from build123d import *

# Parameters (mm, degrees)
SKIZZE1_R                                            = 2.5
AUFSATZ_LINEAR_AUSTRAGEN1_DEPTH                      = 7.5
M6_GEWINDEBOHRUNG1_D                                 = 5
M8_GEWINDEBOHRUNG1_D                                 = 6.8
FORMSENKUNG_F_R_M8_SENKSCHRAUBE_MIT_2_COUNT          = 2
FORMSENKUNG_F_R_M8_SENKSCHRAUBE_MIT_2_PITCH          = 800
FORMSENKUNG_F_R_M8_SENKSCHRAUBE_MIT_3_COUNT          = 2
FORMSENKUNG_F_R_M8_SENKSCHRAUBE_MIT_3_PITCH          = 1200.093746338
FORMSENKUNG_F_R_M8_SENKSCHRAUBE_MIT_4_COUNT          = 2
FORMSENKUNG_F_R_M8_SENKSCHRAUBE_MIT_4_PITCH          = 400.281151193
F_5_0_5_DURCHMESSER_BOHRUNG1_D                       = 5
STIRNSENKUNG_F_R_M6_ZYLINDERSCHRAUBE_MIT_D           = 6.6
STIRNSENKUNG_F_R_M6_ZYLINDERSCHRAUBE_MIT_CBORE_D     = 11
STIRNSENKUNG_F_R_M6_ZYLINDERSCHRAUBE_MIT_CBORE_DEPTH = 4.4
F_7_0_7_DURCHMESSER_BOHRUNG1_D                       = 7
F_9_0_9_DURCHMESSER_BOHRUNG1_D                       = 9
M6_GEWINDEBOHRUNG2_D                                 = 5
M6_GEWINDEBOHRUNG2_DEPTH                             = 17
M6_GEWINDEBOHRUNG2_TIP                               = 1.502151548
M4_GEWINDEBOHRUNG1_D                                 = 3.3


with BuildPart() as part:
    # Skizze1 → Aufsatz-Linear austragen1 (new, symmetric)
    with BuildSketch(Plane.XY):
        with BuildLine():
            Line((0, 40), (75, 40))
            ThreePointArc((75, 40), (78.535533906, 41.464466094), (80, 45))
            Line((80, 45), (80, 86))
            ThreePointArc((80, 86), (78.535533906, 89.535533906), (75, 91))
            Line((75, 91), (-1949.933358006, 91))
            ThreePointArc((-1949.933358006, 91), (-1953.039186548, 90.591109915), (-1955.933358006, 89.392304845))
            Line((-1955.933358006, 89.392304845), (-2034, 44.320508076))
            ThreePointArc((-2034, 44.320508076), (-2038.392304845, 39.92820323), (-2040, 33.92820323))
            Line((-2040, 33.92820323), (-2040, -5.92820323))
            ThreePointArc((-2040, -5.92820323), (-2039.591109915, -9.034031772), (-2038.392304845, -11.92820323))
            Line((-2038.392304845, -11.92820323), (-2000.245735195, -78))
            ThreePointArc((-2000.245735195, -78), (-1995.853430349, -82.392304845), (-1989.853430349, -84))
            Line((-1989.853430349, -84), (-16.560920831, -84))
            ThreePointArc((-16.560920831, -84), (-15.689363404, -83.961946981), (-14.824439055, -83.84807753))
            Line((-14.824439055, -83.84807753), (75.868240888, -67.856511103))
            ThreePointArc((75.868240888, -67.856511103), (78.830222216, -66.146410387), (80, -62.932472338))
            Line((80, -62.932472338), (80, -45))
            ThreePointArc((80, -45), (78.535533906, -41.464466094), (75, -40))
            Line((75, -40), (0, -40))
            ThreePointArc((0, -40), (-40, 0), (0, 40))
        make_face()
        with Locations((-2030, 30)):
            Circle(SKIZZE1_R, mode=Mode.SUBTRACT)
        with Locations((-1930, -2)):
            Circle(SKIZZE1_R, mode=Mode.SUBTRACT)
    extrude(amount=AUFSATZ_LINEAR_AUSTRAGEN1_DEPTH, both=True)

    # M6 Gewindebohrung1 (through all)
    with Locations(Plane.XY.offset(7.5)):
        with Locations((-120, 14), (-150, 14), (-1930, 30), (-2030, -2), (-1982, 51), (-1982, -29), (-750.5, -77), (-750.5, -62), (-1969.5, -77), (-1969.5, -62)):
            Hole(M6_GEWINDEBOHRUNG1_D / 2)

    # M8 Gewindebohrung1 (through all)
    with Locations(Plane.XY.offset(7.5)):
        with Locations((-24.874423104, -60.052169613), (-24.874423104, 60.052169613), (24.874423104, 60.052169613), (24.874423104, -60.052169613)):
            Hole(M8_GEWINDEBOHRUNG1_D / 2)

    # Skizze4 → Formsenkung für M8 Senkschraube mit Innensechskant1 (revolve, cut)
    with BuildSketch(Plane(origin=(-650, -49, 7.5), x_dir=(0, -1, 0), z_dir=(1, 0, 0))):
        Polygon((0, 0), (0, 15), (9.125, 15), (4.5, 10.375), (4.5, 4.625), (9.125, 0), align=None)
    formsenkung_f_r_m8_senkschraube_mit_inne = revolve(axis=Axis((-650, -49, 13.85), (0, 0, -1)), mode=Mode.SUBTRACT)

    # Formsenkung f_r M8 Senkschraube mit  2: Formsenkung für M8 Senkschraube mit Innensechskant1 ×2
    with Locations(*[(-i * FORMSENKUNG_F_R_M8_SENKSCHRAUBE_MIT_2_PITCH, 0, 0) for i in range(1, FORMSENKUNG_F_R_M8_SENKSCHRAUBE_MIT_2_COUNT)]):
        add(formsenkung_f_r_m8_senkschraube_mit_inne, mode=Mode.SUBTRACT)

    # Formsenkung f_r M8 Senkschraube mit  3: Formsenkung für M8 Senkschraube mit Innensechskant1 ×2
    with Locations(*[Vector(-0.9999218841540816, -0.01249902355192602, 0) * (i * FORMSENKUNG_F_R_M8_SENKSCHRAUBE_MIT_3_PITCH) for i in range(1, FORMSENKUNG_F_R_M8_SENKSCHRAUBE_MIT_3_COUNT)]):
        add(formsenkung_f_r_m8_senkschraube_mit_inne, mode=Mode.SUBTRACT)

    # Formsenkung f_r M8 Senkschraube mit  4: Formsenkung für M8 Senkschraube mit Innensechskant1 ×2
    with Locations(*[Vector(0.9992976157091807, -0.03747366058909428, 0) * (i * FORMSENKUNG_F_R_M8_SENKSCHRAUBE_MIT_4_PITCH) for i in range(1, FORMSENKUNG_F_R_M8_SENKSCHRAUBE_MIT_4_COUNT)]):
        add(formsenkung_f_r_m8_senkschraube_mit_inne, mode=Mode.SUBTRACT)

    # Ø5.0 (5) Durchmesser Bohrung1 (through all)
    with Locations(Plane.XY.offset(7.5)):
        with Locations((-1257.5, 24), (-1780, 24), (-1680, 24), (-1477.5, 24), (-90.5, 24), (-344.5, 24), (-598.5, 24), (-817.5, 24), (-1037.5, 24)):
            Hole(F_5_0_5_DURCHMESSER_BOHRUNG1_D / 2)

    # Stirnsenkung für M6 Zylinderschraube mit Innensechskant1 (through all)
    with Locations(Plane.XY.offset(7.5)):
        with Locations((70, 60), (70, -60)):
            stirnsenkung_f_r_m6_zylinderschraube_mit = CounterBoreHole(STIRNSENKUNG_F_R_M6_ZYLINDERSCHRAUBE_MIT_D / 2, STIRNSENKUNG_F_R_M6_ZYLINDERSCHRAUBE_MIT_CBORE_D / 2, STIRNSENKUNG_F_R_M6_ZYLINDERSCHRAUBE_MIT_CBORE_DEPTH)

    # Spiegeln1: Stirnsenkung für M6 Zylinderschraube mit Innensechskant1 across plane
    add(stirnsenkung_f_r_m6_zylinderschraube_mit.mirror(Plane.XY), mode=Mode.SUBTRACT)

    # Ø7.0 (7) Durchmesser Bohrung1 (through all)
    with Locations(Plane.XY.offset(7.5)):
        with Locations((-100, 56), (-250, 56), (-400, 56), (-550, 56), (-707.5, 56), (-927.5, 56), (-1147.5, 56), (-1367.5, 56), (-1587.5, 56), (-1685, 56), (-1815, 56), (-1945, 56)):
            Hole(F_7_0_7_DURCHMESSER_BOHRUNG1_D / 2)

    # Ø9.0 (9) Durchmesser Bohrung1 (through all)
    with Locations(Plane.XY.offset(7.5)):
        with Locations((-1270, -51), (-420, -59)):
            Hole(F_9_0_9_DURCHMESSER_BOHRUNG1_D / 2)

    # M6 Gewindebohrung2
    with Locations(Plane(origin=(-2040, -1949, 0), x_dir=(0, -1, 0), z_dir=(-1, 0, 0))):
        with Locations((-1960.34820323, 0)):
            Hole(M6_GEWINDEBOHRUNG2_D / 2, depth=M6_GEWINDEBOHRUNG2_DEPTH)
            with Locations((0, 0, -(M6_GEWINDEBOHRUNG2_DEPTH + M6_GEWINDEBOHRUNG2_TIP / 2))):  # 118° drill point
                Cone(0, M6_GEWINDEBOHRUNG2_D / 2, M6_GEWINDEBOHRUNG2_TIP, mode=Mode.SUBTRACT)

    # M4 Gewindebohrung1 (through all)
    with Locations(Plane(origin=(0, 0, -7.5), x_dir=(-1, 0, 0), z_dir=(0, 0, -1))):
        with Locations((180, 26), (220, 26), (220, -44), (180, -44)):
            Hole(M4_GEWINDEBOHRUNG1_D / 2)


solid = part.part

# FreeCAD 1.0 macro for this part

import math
import FreeCAD as App
import Part
import Sketcher

V = App.Vector
Q = App.Units.Quantity


def add_polygon(sketch, points):
    """Adds a closed chain of lines whose ends are joined by coincident constraints."""
    first, n = sketch.GeometryCount, len(points)
    for a, b in zip(points, points[1:] + points[:1]):
        sketch.addGeometry(Part.LineSegment(App.Vector(*a, 0), App.Vector(*b, 0)), False)
    for i in range(n):
        sketch.addConstraint(Sketcher.Constraint("Coincident", first + i, 2, first + (i + 1) % n, 1))

doc = App.newDocument("Part")
params = doc.addObject("Spreadsheet::Sheet", "Params")
for row, (alias, value) in enumerate([
    ("sketch1_diameter", "5 mm"),
    ("sketch1_radius", "5 mm"),
    ("sketch1_radius2", "12 mm"),
    ("sketch1_radius3", "10 mm"),
    ("sketch1_radius4", "40 mm"),
    ("pad1_length", "15 mm"),
    ("sketch2_diameter", "5 mm"),
    ("hole_diameter", "5 mm"),
    ("sketch3_diameter", "6.8 mm"),
    ("hole2_diameter", "6.8 mm"),
    ("sketch4_height", "15 mm"),
    ("sketch4_height2", "5.75 mm"),
    ("groove_angle", "360 deg"),
    ("linearpattern_pitch", "800 mm"),
    ("linearpattern2_pitch", "1200.093746 mm"),
    ("linearpattern3_pitch", "400.281151 mm"),
    ("sketch5_diameter", "5 mm"),
    ("hole3_diameter", "5 mm"),
    ("sketch6_diameter", "6.6 mm"),
    ("hole4_diameter", "6.6 mm"),
    ("hole4_cbore_diameter", "11 mm"),
    ("hole4_cbore_depth", "4.4 mm"),
    ("sketch7_diameter", "7 mm"),
    ("hole5_diameter", "7 mm"),
    ("sketch8_diameter", "9 mm"),
    ("hole6_diameter", "9 mm"),
    ("sketch9_diameter", "5 mm"),
    ("hole7_diameter", "5 mm"),
    ("hole7_depth", "17 mm"),
    ("sketch10_diameter", "3.3 mm"),
    ("hole8_diameter", "3.3 mm"),
], start=1):
    params.set(f"A{row}", alias)
    params.set(f"B{row}", "=" + value)
    params.setAlias(f"B{row}", alias)

body = doc.addObject("PartDesign::Body", "Body")

# Sketch on XY plane
sketch1 = doc.addObject("Sketcher::SketchObject", "Sketch")
body.addObject(sketch1)
sketch1.AttachmentSupport = (doc.XY_Plane, [""])
sketch1.MapMode = "FlatFace"
sketch1.addGeometry([
    Part.LineSegment(V(0, 40, 0), V(75, 40, 0)),  # 0
    Part.ArcOfCircle(Part.Circle(V(75, 45, 0), V(0, 0, 1), 5), math.radians(-90), math.radians(0)),  # 1
    Part.LineSegment(V(80, 45, 0), V(80, 86, 0)),  # 2
    Part.ArcOfCircle(Part.Circle(V(75, 86, 0), V(0, 0, 1), 5), math.radians(0), math.radians(90)),  # 3
    Part.LineSegment(V(75, 91, 0), V(-1949.9, 91, 0)),  # 4
    Part.ArcOfCircle(Part.Circle(V(-1949.9, 79, 0), V(0, 0, 1), 12), math.radians(90), math.radians(120)),  # 5
    Part.LineSegment(V(-1955.9, 89.4, 0), V(-2034, 44.3, 0)),  # 6
    Part.ArcOfCircle(Part.Circle(V(-2028, 33.9, 0), V(0, 0, 1), 12), math.radians(120), math.radians(180)),  # 7
    Part.LineSegment(V(-2040, 33.9, 0), V(-2040, -5.9, 0)),  # 8
    Part.ArcOfCircle(Part.Circle(V(-2028, -5.9, 0), V(0, 0, 1), 12), math.radians(-180), math.radians(-150)),  # 9
    Part.LineSegment(V(-2038.4, -11.9, 0), V(-2000.2, -78, 0)),  # 10
    Part.ArcOfCircle(Part.Circle(V(-1989.9, -72, 0), V(0, 0, 1), 12), math.radians(-150), math.radians(-90)),  # 11
    Part.LineSegment(V(-1989.9, -84, 0), V(-16.6, -84, 0)),  # 12
    Part.ArcOfCircle(Part.Circle(V(-16.6, -74, 0), V(0, 0, 1), 10), math.radians(-90), math.radians(-80)),  # 13
    Part.LineSegment(V(-14.8, -83.8, 0), V(75.9, -67.9, 0)),  # 14
    Part.ArcOfCircle(Part.Circle(V(75, -62.9, 0), V(0, 0, 1), 5), math.radians(-80), math.radians(0)),  # 15
    Part.LineSegment(V(80, -62.9, 0), V(80, -45, 0)),  # 16
    Part.ArcOfCircle(Part.Circle(V(75, -45, 0), V(0, 0, 1), 5), math.radians(0), math.radians(90)),  # 17
    Part.LineSegment(V(75, -40, 0), V(0, -40, 0)),  # 18
    Part.ArcOfCircle(Part.Circle(V(0, 0, 0), V(0, 0, 1), 40), math.radians(90), math.radians(270)),  # 19
    Part.Circle(V(-1930, -2, 0), V(0, 0, 1), 2.5),  # 20
    Part.Circle(V(-2030, 30, 0), V(0, 0, 1), 2.5),  # 21
], False)
sketch1.addConstraint([
    Sketcher.Constraint("Tangent", 0, 2, 1, 1),
    Sketcher.Constraint("Tangent", 1, 2, 2, 1),
    Sketcher.Constraint("Tangent", 2, 2, 3, 1),
    Sketcher.Constraint("Tangent", 3, 2, 4, 1),
    Sketcher.Constraint("Tangent", 4, 2, 5, 1),
    Sketcher.Constraint("Tangent", 5, 2, 6, 1),
    Sketcher.Constraint("Tangent", 6, 2, 7, 1),
    Sketcher.Constraint("Tangent", 7, 2, 8, 1),
    Sketcher.Constraint("Tangent", 8, 2, 9, 1),
    Sketcher.Constraint("Tangent", 9, 2, 10, 1),
    Sketcher.Constraint("Tangent", 10, 2, 11, 1),
    Sketcher.Constraint("Tangent", 11, 2, 12, 1),
    Sketcher.Constraint("Tangent", 12, 2, 13, 1),
    Sketcher.Constraint("Tangent", 13, 2, 14, 1),
    Sketcher.Constraint("Tangent", 14, 2, 15, 1),
    Sketcher.Constraint("Tangent", 15, 2, 16, 1),
    Sketcher.Constraint("Tangent", 16, 2, 17, 1),
    Sketcher.Constraint("Tangent", 17, 2, 18, 1),
    Sketcher.Constraint("Tangent", 18, 2, 19, 2),
    Sketcher.Constraint("Tangent", 19, 1, 0, 1),
    Sketcher.Constraint("Horizontal", 0),
    Sketcher.Constraint("Vertical", 2),
    Sketcher.Constraint("Horizontal", 4),
    Sketcher.Constraint("Vertical", 8),
    Sketcher.Constraint("Horizontal", 12),
    Sketcher.Constraint("Vertical", 16),
    Sketcher.Constraint("Horizontal", 18),
    Sketcher.Constraint("Coincident", 19, 3, -1, 1),
    Sketcher.Constraint("Equal", 1, 3),
    Sketcher.Constraint("Equal", 5, 7),
    Sketcher.Constraint("Equal", 7, 9),
    Sketcher.Constraint("Equal", 9, 11),
    Sketcher.Constraint("Equal", 3, 15),
    Sketcher.Constraint("Equal", 15, 17),
    Sketcher.Constraint("Equal", 20, 21),
    Sketcher.Constraint("Perpendicular", 6, 10),
    Sketcher.Constraint("Vertical", 3, 3, 15, 3),
    Sketcher.Constraint("Diameter", 20, Q("5 mm")),
    Sketcher.Constraint("Radius", 1, Q("5 mm")),
    Sketcher.Constraint("Radius", 5, Q("12 mm")),
    Sketcher.Constraint("Radius", 13, Q("10 mm")),
    Sketcher.Constraint("Radius", 19, Q("40 mm")),
    Sketcher.Constraint("DistanceX", 0, 1, 0, 2, Q("75 mm")),
    Sketcher.Constraint("DistanceY", 2, 1, 2, 2, Q("41 mm")),
    Sketcher.Constraint("Angle", 6, Q("-150 deg")),
    Sketcher.Constraint("Angle", 14, Q("10 deg")),
    Sketcher.Constraint("DistanceX", 7, 3, -1, 1, Q("2028 mm")),
    Sketcher.Constraint("DistanceY", 11, 3, -1, 1, Q("72 mm")),
    Sketcher.Constraint("DistanceX", 20, 3, -1, 1, Q("1930 mm")),
    Sketcher.Constraint("DistanceY", 20, 3, -1, 1, Q("2 mm")),
    Sketcher.Constraint("DistanceX", 21, 3, -1, 1, Q("2030 mm")),
    Sketcher.Constraint("DistanceY", -1, 1, 21, 3, Q("30 mm")),
    Sketcher.Constraint("DistanceX", 4, 2, 4, 1, Q("2024.933358 mm")),
    Sketcher.Constraint("DistanceX", 12, 1, 12, 2, Q("1973.29251 mm")),
    Sketcher.Constraint("Distance", 10, Q("76.293139 mm")),
])
sketch1.setExpression("Constraints[37]", "Params.sketch1_diameter")
sketch1.setExpression("Constraints[38]", "Params.sketch1_radius")
sketch1.setExpression("Constraints[39]", "Params.sketch1_radius2")
sketch1.setExpression("Constraints[40]", "Params.sketch1_radius3")
sketch1.setExpression("Constraints[41]", "Params.sketch1_radius4")
pad1 = doc.addObject("PartDesign::Pad", "Pad")
body.addObject(pad1)
pad1.Profile = sketch1
pad1.setExpression("Length", "Params.pad1_length")
pad1.Midplane = True

# Sketch on XY plane
sketch2 = doc.addObject("Sketcher::SketchObject", "Sketch001")
body.addObject(sketch2)
sketch2.AttachmentSupport = (doc.XY_Plane, [""])
sketch2.MapMode = "FlatFace"
sketch2.AttachmentOffset = App.Placement(V(0, 0, 7.5), App.Rotation())
sketch2.addGeometry([
    Part.Circle(V(-120, 14, 0), V(0, 0, 1), 2.5),  # 0
    Part.Circle(V(-150, 14, 0), V(0, 0, 1), 2.5),  # 1
    Part.Circle(V(-1930, 30, 0), V(0, 0, 1), 2.5),  # 2
    Part.Circle(V(-2030, -2, 0), V(0, 0, 1), 2.5),  # 3
    Part.Circle(V(-1982, 51, 0), V(0, 0, 1), 2.5),  # 4
    Part.Circle(V(-1982, -29, 0), V(0, 0, 1), 2.5),  # 5
    Part.Circle(V(-750.5, -77, 0), V(0, 0, 1), 2.5),  # 6
    Part.Circle(V(-750.5, -62, 0), V(0, 0, 1), 2.5),  # 7
    Part.Circle(V(-1969.5, -77, 0), V(0, 0, 1), 2.5),  # 8
    Part.Circle(V(-1969.5, -62, 0), V(0, 0, 1), 2.5),  # 9
], False)
sketch2.addConstraint([
    Sketcher.Constraint("Equal", 0, 1),
    Sketcher.Constraint("Equal", 1, 2),
    Sketcher.Constraint("Equal", 2, 3),
    Sketcher.Constraint("Equal", 3, 4),
    Sketcher.Constraint("Equal", 4, 5),
    Sketcher.Constraint("Equal", 5, 6),
    Sketcher.Constraint("Equal", 6, 7),
    Sketcher.Constraint("Equal", 7, 8),
    Sketcher.Constraint("Equal", 8, 9),
    Sketcher.Constraint("Horizontal", 0, 3, 1, 3),
    Sketcher.Constraint("Horizontal", 6, 3, 8, 3),
    Sketcher.Constraint("Horizontal", 7, 3, 9, 3),
    Sketcher.Constraint("Vertical", 4, 3, 5, 3),
    Sketcher.Constraint("Vertical", 6, 3, 7, 3),
    Sketcher.Constraint("Vertical", 8, 3, 9, 3),
    Sketcher.Constraint("Diameter", 0, Q("5 mm")),
    Sketcher.Constraint("DistanceX", 0, 3, -1, 1, Q("120 mm")),
    Sketcher.Constraint("DistanceY", -1, 1, 0, 3, Q("14 mm")),
    Sketcher.Constraint("DistanceX", 1, 3, -1, 1, Q("150 mm")),
    Sketcher.Constraint("DistanceX", 2, 3, -1, 1, Q("1930 mm")),
    Sketcher.Constraint("DistanceY", -1, 1, 2, 3, Q("30 mm")),
    Sketcher.Constraint("DistanceX", 3, 3, -1, 1, Q("2030 mm")),
    Sketcher.Constraint("DistanceY", 3, 3, -1, 1, Q("2 mm")),
    Sketcher.Constraint("DistanceX", 4, 3, -1, 1, Q("1982 mm")),
    Sketcher.Constraint("DistanceY", -1, 1, 4, 3, Q("51 mm")),
    Sketcher.Constraint("DistanceY", 5, 3, -1, 1, Q("29 mm")),
    Sketcher.Constraint("DistanceY", 6, 3, -1, 1, Q("77 mm")),
    Sketcher.Constraint("DistanceY", 7, 3, -1, 1, Q("62 mm")),
    Sketcher.Constraint("DistanceX", 8, 3, 6, 3, Q("1219 mm")),
    Sketcher.Constraint("DistanceX", 6, 3, -1, 1, Q("750.5 mm")),
])
sketch2.setExpression("Constraints[15]", "Params.sketch2_diameter")
doc.recompute()
hole = doc.addObject("PartDesign::Hole", "Hole")
body.addObject(hole)
hole.Profile = sketch2
hole.ThreadType = "None"
hole.setExpression("Diameter", "Params.hole_diameter")
hole.DepthType = "ThroughAll"

# Sketch on XY plane
sketch3 = doc.addObject("Sketcher::SketchObject", "Sketch002")
body.addObject(sketch3)
sketch3.AttachmentSupport = (doc.XY_Plane, [""])
sketch3.MapMode = "FlatFace"
sketch3.AttachmentOffset = App.Placement(V(0, 0, 7.5), App.Rotation())
sketch3.addGeometry([
    Part.Circle(V(-24.9, -60.1, 0), V(0, 0, 1), 3.4),
    Part.Circle(V(-24.9, 60.1, 0), V(0, 0, 1), 3.4),
    Part.Circle(V(24.9, 60.1, 0), V(0, 0, 1), 3.4),
    Part.Circle(V(24.9, -60.1, 0), V(0, 0, 1), 3.4),
], False)
sketch3.addConstraint([
    Sketcher.Constraint("Equal", 0, 1),
    Sketcher.Constraint("Equal", 1, 2),
    Sketcher.Constraint("Equal", 2, 3),
    Sketcher.Constraint("Symmetric", 0, 3, 2, 3, -1, 1),
    Sketcher.Constraint("Symmetric", 1, 3, 3, 3, -1, 1),
    Sketcher.Constraint("Symmetric", 1, 3, 2, 3, -2),
    Sketcher.Constraint("Diameter", 0, Q("6.8 mm")),
    Sketcher.Constraint("DistanceY", 0, 3, -1, 1, Q("60.05217 mm")),
    Sketcher.Constraint("DistanceX", 0, 3, -1, 1, Q("24.874423 mm")),
])
sketch3.setExpression("Constraints[6]", "Params.sketch3_diameter")
doc.recompute()
hole2 = doc.addObject("PartDesign::Hole", "Hole001")
body.addObject(hole2)
hole2.Profile = sketch3
hole2.ThreadType = "None"
hole2.setExpression("Diameter", "Params.hole2_diameter")
hole2.DepthType = "ThroughAll"

# Sketch on YZ plane
sketch4 = doc.addObject("Sketcher::SketchObject", "Sketch003")
body.addObject(sketch4)
sketch4.AttachmentSupport = (doc.YZ_Plane, [""])
sketch4.MapMode = "FlatFace"
sketch4.AttachmentOffset = App.Placement(V(0, 0, -650), App.Rotation())
add_polygon(sketch4, [(-49, -8), (-49, 8), (-58, 8), (-54, 3), (-54, -3), (-58, -8)])  # lines 0-5
sketch4.addGeometry(Part.LineSegment(V(-49, 8, 0), V(-49, -8, 0)), True)  # axis
sketch4.addConstraint([
    Sketcher.Constraint("Vertical", 0),
    Sketcher.Constraint("Horizontal", 1),
    Sketcher.Constraint("Vertical", 3),
    Sketcher.Constraint("Horizontal", 5),
    Sketcher.Constraint("Vertical", 6),
    Sketcher.Constraint("Coincident", 6, 1, 0, 2),
    Sketcher.Constraint("Symmetric", 1, 2, 4, 2, -1),
    Sketcher.Constraint("Perpendicular", 2, 4),
    Sketcher.Constraint("Horizontal", 4, 2, 6, 2),
    Sketcher.Constraint("Equal", 2, 4),
    Sketcher.Constraint("DistanceY", 0, 1, 0, 2, Q("15 mm")),
    Sketcher.Constraint("DistanceX", 0, 2, -1, 1, Q("49 mm")),
    Sketcher.Constraint("DistanceY", 3, 2, 3, 1, Q("5.75 mm")),
    Sketcher.Constraint("DistanceX", 2, 2, -1, 1, Q("53.5 mm")),
])
sketch4.setExpression("Constraints[16]", "Params.sketch4_height")
sketch4.setExpression("Constraints[18]", "Params.sketch4_height2")
groove = doc.addObject("PartDesign::Groove", "Groove")
body.addObject(groove)
groove.Profile = sketch4
groove.ReferenceAxis = (sketch4, ["Axis0"])
groove.setExpression("Angle", "Params.groove_angle")
doc.recompute()

linearpattern = doc.addObject("PartDesign::LinearPattern", "LinearPattern")
body.addObject(linearpattern)
linearpattern.Originals = [groove]
linearpattern.Direction = (doc.X_Axis, [""])
linearpattern.Mode = "offset"
linearpattern.setExpression("Offset", "Params.linearpattern_pitch")
linearpattern.Occurrences = 2
linearpattern.Reversed = True
body.Tip = linearpattern
doc.recompute()

datumline = doc.addObject("PartDesign::Line", "DatumLine")
body.addObject(datumline)
datumline.Placement = App.Placement(V(0, 0, 0), App.Rotation(V(0, 0, 1), V(-0.999921884, -0.012499024, 0)))
linearpattern2 = doc.addObject("PartDesign::LinearPattern", "LinearPattern001")
body.addObject(linearpattern2)
linearpattern2.Originals = [groove]
linearpattern2.Direction = (datumline, [""])
linearpattern2.Mode = "offset"
linearpattern2.setExpression("Offset", "Params.linearpattern2_pitch")
linearpattern2.Occurrences = 2
body.Tip = linearpattern2
doc.recompute()

datumline2 = doc.addObject("PartDesign::Line", "DatumLine001")
body.addObject(datumline2)
datumline2.Placement = App.Placement(V(0, 0, 0), App.Rotation(V(0, 0, 1), V(0.999297616, -0.037473661, 0)))
linearpattern3 = doc.addObject("PartDesign::LinearPattern", "LinearPattern002")
body.addObject(linearpattern3)
linearpattern3.Originals = [groove]
linearpattern3.Direction = (datumline2, [""])
linearpattern3.Mode = "offset"
linearpattern3.setExpression("Offset", "Params.linearpattern3_pitch")
linearpattern3.Occurrences = 2
body.Tip = linearpattern3

# Sketch on XY plane
sketch5 = doc.addObject("Sketcher::SketchObject", "Sketch004")
body.addObject(sketch5)
sketch5.AttachmentSupport = (doc.XY_Plane, [""])
sketch5.MapMode = "FlatFace"
sketch5.AttachmentOffset = App.Placement(V(0, 0, 7.5), App.Rotation())
sketch5.addGeometry([
    Part.Circle(V(-1257.5, 24, 0), V(0, 0, 1), 2.5),  # 0
    Part.Circle(V(-1780, 24, 0), V(0, 0, 1), 2.5),  # 1
    Part.Circle(V(-1680, 24, 0), V(0, 0, 1), 2.5),  # 2
    Part.Circle(V(-1477.5, 24, 0), V(0, 0, 1), 2.5),  # 3
    Part.Circle(V(-90.5, 24, 0), V(0, 0, 1), 2.5),  # 4
    Part.Circle(V(-344.5, 24, 0), V(0, 0, 1), 2.5),  # 5
    Part.Circle(V(-598.5, 24, 0), V(0, 0, 1), 2.5),  # 6
    Part.Circle(V(-817.5, 24, 0), V(0, 0, 1), 2.5),  # 7
    Part.Circle(V(-1037.5, 24, 0), V(0, 0, 1), 2.5),  # 8
], False)
sketch5.addConstraint([
    Sketcher.Constraint("Equal", 0, 1),
    Sketcher.Constraint("Equal", 1, 2),
    Sketcher.Constraint("Equal", 2, 3),
    Sketcher.Constraint("Equal", 3, 4),
    Sketcher.Constraint("Equal", 4, 5),
    Sketcher.Constraint("Equal", 5, 6),
    Sketcher.Constraint("Equal", 6, 7),
    Sketcher.Constraint("Equal", 7, 8),
    Sketcher.Constraint("Horizontal", 0, 3, 1, 3),
    Sketcher.Constraint("Horizontal", 1, 3, 2, 3),
    Sketcher.Constraint("Horizontal", 2, 3, 3, 3),
    Sketcher.Constraint("Horizontal", 3, 3, 4, 3),
    Sketcher.Constraint("Horizontal", 4, 3, 5, 3),
    Sketcher.Constraint("Horizontal", 5, 3, 6, 3),
    Sketcher.Constraint("Horizontal", 6, 3, 7, 3),
    Sketcher.Constraint("Horizontal", 7, 3, 8, 3),
    Sketcher.Constraint("Diameter", 0, Q("5 mm")),
    Sketcher.Constraint("DistanceY", -1, 1, 0, 3, Q("24 mm")),
    Sketcher.Constraint("DistanceX", 1, 3, -1, 1, Q("1780 mm")),
    Sketcher.Constraint("DistanceX", 2, 3, -1, 1, Q("1680 mm")),
    Sketcher.Constraint("DistanceX", 3, 3, 0, 3, Q("220 mm")),
    Sketcher.Constraint("DistanceX", 0, 3, 4, 3, Q("1167 mm")),
    Sketcher.Constraint("DistanceX", 5, 3, 4, 3, Q("254 mm")),
    Sketcher.Constraint("DistanceX", 6, 3, 5, 3, Q("254 mm")),
    Sketcher.Constraint("DistanceX", 7, 3, 6, 3, Q("219 mm")),
    Sketcher.Constraint("DistanceX", 0, 3, 8, 3, Q("220 mm")),
    Sketcher.Constraint("DistanceX", 0, 3, -1, 1, Q("1257.5 mm")),
])
sketch5.setExpression("Constraints[16]", "Params.sketch5_diameter")
doc.recompute()
hole3 = doc.addObject("PartDesign::Hole", "Hole002")
body.addObject(hole3)
hole3.Profile = sketch5
hole3.ThreadType = "None"
hole3.setExpression("Diameter", "Params.hole3_diameter")
hole3.DepthType = "ThroughAll"

# Sketch on XY plane
sketch6 = doc.addObject("Sketcher::SketchObject", "Sketch005")
body.addObject(sketch6)
sketch6.AttachmentSupport = (doc.XY_Plane, [""])
sketch6.MapMode = "FlatFace"
sketch6.AttachmentOffset = App.Placement(V(0, 0, 7.5), App.Rotation())
sketch6.addGeometry([
    Part.Circle(V(70, 60, 0), V(0, 0, 1), 3.3),
    Part.Circle(V(70, -60, 0), V(0, 0, 1), 3.3),
], False)
sketch6.addConstraint([
    Sketcher.Constraint("Equal", 0, 1),
    Sketcher.Constraint("Symmetric", 0, 3, 1, 3, -1),
    Sketcher.Constraint("Diameter", 0, Q("6.6 mm")),
    Sketcher.Constraint("DistanceX", -1, 1, 0, 3, Q("70 mm")),
    Sketcher.Constraint("DistanceY", -1, 1, 0, 3, Q("60 mm")),
])
sketch6.setExpression("Constraints[2]", "Params.sketch6_diameter")
doc.recompute()
hole4 = doc.addObject("PartDesign::Hole", "Hole003")
body.addObject(hole4)
hole4.Profile = sketch6
hole4.ThreadType = "None"
hole4.setExpression("Diameter", "Params.hole4_diameter")
hole4.DepthType = "ThroughAll"
hole4.HoleCutType = "Counterbore"
hole4.setExpression("HoleCutDiameter", "Params.hole4_cbore_diameter")
hole4.setExpression("HoleCutDepth", "Params.hole4_cbore_depth")
doc.recompute()

mirrored = doc.addObject("PartDesign::Mirrored", "Mirrored")
body.addObject(mirrored)
mirrored.Originals = [hole4]
mirrored.MirrorPlane = (doc.XY_Plane, [""])
body.Tip = mirrored

# Sketch on XY plane
sketch7 = doc.addObject("Sketcher::SketchObject", "Sketch006")
body.addObject(sketch7)
sketch7.AttachmentSupport = (doc.XY_Plane, [""])
sketch7.MapMode = "FlatFace"
sketch7.AttachmentOffset = App.Placement(V(0, 0, 7.5), App.Rotation())
sketch7.addGeometry([
    Part.Circle(V(-100, 56, 0), V(0, 0, 1), 3.5),  # 0
    Part.Circle(V(-250, 56, 0), V(0, 0, 1), 3.5),  # 1
    Part.Circle(V(-400, 56, 0), V(0, 0, 1), 3.5),  # 2
    Part.Circle(V(-550, 56, 0), V(0, 0, 1), 3.5),  # 3
    Part.Circle(V(-707.5, 56, 0), V(0, 0, 1), 3.5),  # 4
    Part.Circle(V(-927.5, 56, 0), V(0, 0, 1), 3.5),  # 5
    Part.Circle(V(-1147.5, 56, 0), V(0, 0, 1), 3.5),  # 6
    Part.Circle(V(-1367.5, 56, 0), V(0, 0, 1), 3.5),  # 7
    Part.Circle(V(-1587.5, 56, 0), V(0, 0, 1), 3.5),  # 8
    Part.Circle(V(-1685, 56, 0), V(0, 0, 1), 3.5),  # 9
    Part.Circle(V(-1815, 56, 0), V(0, 0, 1), 3.5),  # 10
    Part.Circle(V(-1945, 56, 0), V(0, 0, 1), 3.5),  # 11
], False)
sketch7.addConstraint([
    Sketcher.Constraint("Equal", 0, 1),
    Sketcher.Constraint("Equal", 1, 2),
    Sketcher.Constraint("Equal", 2, 3),
    Sketcher.Constraint("Equal", 3, 4),
    Sketcher.Constraint("Equal", 4, 5),
    Sketcher.Constraint("Equal", 5, 6),
    Sketcher.Constraint("Equal", 6, 7),
    Sketcher.Constraint("Equal", 7, 8),
    Sketcher.Constraint("Equal", 8, 9),
    Sketcher.Constraint("Equal", 9, 10),
    Sketcher.Constraint("Equal", 10, 11),
    Sketcher.Constraint("Horizontal", 0, 3, 1, 3),
    Sketcher.Constraint("Horizontal", 1, 3, 2, 3),
    Sketcher.Constraint("Horizontal", 2, 3, 3, 3),
    Sketcher.Constraint("Horizontal", 3, 3, 4, 3),
    Sketcher.Constraint("Horizontal", 4, 3, 5, 3),
    Sketcher.Constraint("Horizontal", 5, 3, 6, 3),
    Sketcher.Constraint("Horizontal", 6, 3, 7, 3),
    Sketcher.Constraint("Horizontal", 7, 3, 8, 3),
    Sketcher.Constraint("Horizontal", 8, 3, 9, 3),
    Sketcher.Constraint("Horizontal", 9, 3, 10, 3),
    Sketcher.Constraint("Horizontal", 10, 3, 11, 3),
    Sketcher.Constraint("Diameter", 0, Q("7 mm")),
    Sketcher.Constraint("DistanceX", 0, 3, -1, 1, Q("100 mm")),
    Sketcher.Constraint("DistanceY", -1, 1, 0, 3, Q("56 mm")),
    Sketcher.Constraint("DistanceX", 1, 3, -1, 1, Q("250 mm")),
    Sketcher.Constraint("DistanceX", 2, 3, -1, 1, Q("400 mm")),
    Sketcher.Constraint("DistanceX", 3, 3, -1, 1, Q("550 mm")),
    Sketcher.Constraint("DistanceX", 9, 3, -1, 1, Q("1685 mm")),
    Sketcher.Constraint("DistanceX", 10, 3, -1, 1, Q("1815 mm")),
    Sketcher.Constraint("DistanceX", 11, 3, -1, 1, Q("1945 mm")),
    Sketcher.Constraint("DistanceX", 5, 3, 4, 3, Q("220 mm")),
    Sketcher.Constraint("DistanceX", 6, 3, 5, 3, Q("220 mm")),
    Sketcher.Constraint("DistanceX", 7, 3, 6, 3, Q("220 mm")),
    Sketcher.Constraint("DistanceX", 8, 3, 7, 3, Q("220 mm")),
    Sketcher.Constraint("DistanceX", 4, 3, -1, 1, Q("707.5 mm")),
])
sketch7.setExpression("Constraints[22]", "Params.sketch7_diameter")
doc.recompute()
hole5 = doc.addObject("PartDesign::Hole", "Hole004")
body.addObject(hole5)
hole5.Profile = sketch7
hole5.ThreadType = "None"
hole5.setExpression("Diameter", "Params.hole5_diameter")
hole5.DepthType = "ThroughAll"

# Sketch on XY plane
sketch8 = doc.addObject("Sketcher::SketchObject", "Sketch007")
body.addObject(sketch8)
sketch8.AttachmentSupport = (doc.XY_Plane, [""])
sketch8.MapMode = "FlatFace"
sketch8.AttachmentOffset = App.Placement(V(0, 0, 7.5), App.Rotation())
sketch8.addGeometry([
    Part.Circle(V(-1270, -51, 0), V(0, 0, 1), 4.5),
    Part.Circle(V(-420, -59, 0), V(0, 0, 1), 4.5),
], False)
sketch8.addConstraint([
    Sketcher.Constraint("Equal", 0, 1),
    Sketcher.Constraint("Diameter", 0, Q("9 mm")),
    Sketcher.Constraint("DistanceX", 0, 3, -1, 1, Q("1270 mm")),
    Sketcher.Constraint("DistanceY", 0, 3, -1, 1, Q("51 mm")),
    Sketcher.Constraint("DistanceX", 1, 3, -1, 1, Q("420 mm")),
    Sketcher.Constraint("DistanceY", 1, 3, -1, 1, Q("59 mm")),
])
sketch8.setExpression("Constraints[1]", "Params.sketch8_diameter")
doc.recompute()
hole6 = doc.addObject("PartDesign::Hole", "Hole005")
body.addObject(hole6)
hole6.Profile = sketch8
hole6.ThreadType = "None"
hole6.setExpression("Diameter", "Params.hole6_diameter")
hole6.DepthType = "ThroughAll"

# Sketch on YZ plane
sketch9 = doc.addObject("Sketcher::SketchObject", "Sketch008")
body.addObject(sketch9)
sketch9.AttachmentSupport = (doc.YZ_Plane, [""])
sketch9.MapMode = "FlatFace"
sketch9.AttachmentOffset = App.Placement(V(0, 0, -2040), App.Rotation())
sketch9.addGeometry(Part.Circle(V(11.3, 0, 0), V(0, 0, 1), 2.5), False)
sketch9.addConstraint([
    Sketcher.Constraint("PointOnObject", 0, 3, -1),
    Sketcher.Constraint("Diameter", 0, Q("5 mm")),
    Sketcher.Constraint("DistanceX", -1, 1, 0, 3, Q("11.348203 mm")),
])
sketch9.setExpression("Constraints[1]", "Params.sketch9_diameter")
doc.recompute()
hole7 = doc.addObject("PartDesign::Hole", "Hole006")
body.addObject(hole7)
hole7.Profile = sketch9
hole7.ThreadType = "None"
hole7.setExpression("Diameter", "Params.hole7_diameter")
hole7.DepthType = "Dimension"
hole7.setExpression("Depth", "Params.hole7_depth")
hole7.DrillPoint = "Angled"
hole7.DrillPointAngle = 118
hole7.Reversed = True

# Sketch on XY plane
sketch10 = doc.addObject("Sketcher::SketchObject", "Sketch009")
body.addObject(sketch10)
sketch10.AttachmentSupport = (doc.XY_Plane, [""])
sketch10.MapMode = "FlatFace"
sketch10.AttachmentOffset = App.Placement(V(0, 0, -7.5), App.Rotation())
sketch10.addGeometry([
    Part.Circle(V(-180, 26, 0), V(0, 0, 1), 1.6),
    Part.Circle(V(-220, 26, 0), V(0, 0, 1), 1.6),
    Part.Circle(V(-220, -44, 0), V(0, 0, 1), 1.6),
    Part.Circle(V(-180, -44, 0), V(0, 0, 1), 1.6),
], False)
sketch10.addConstraint([
    Sketcher.Constraint("Equal", 0, 1),
    Sketcher.Constraint("Equal", 1, 2),
    Sketcher.Constraint("Equal", 2, 3),
    Sketcher.Constraint("Horizontal", 0, 3, 1, 3),
    Sketcher.Constraint("Horizontal", 2, 3, 3, 3),
    Sketcher.Constraint("Vertical", 1, 3, 2, 3),
    Sketcher.Constraint("Vertical", 0, 3, 3, 3),
    Sketcher.Constraint("Diameter", 0, Q("3.3 mm")),
    Sketcher.Constraint("DistanceX", 0, 3, -1, 1, Q("180 mm")),
    Sketcher.Constraint("DistanceY", -1, 1, 0, 3, Q("26 mm")),
    Sketcher.Constraint("DistanceX", 1, 3, -1, 1, Q("220 mm")),
    Sketcher.Constraint("DistanceY", 2, 3, -1, 1, Q("44 mm")),
])
sketch10.setExpression("Constraints[7]", "Params.sketch10_diameter")
doc.recompute()
hole8 = doc.addObject("PartDesign::Hole", "Hole007")
body.addObject(hole8)
hole8.Profile = sketch10
hole8.ThreadType = "None"
hole8.setExpression("Diameter", "Params.hole8_diameter")
hole8.DepthType = "ThroughAll"
hole8.Reversed = True

doc.recompute()
